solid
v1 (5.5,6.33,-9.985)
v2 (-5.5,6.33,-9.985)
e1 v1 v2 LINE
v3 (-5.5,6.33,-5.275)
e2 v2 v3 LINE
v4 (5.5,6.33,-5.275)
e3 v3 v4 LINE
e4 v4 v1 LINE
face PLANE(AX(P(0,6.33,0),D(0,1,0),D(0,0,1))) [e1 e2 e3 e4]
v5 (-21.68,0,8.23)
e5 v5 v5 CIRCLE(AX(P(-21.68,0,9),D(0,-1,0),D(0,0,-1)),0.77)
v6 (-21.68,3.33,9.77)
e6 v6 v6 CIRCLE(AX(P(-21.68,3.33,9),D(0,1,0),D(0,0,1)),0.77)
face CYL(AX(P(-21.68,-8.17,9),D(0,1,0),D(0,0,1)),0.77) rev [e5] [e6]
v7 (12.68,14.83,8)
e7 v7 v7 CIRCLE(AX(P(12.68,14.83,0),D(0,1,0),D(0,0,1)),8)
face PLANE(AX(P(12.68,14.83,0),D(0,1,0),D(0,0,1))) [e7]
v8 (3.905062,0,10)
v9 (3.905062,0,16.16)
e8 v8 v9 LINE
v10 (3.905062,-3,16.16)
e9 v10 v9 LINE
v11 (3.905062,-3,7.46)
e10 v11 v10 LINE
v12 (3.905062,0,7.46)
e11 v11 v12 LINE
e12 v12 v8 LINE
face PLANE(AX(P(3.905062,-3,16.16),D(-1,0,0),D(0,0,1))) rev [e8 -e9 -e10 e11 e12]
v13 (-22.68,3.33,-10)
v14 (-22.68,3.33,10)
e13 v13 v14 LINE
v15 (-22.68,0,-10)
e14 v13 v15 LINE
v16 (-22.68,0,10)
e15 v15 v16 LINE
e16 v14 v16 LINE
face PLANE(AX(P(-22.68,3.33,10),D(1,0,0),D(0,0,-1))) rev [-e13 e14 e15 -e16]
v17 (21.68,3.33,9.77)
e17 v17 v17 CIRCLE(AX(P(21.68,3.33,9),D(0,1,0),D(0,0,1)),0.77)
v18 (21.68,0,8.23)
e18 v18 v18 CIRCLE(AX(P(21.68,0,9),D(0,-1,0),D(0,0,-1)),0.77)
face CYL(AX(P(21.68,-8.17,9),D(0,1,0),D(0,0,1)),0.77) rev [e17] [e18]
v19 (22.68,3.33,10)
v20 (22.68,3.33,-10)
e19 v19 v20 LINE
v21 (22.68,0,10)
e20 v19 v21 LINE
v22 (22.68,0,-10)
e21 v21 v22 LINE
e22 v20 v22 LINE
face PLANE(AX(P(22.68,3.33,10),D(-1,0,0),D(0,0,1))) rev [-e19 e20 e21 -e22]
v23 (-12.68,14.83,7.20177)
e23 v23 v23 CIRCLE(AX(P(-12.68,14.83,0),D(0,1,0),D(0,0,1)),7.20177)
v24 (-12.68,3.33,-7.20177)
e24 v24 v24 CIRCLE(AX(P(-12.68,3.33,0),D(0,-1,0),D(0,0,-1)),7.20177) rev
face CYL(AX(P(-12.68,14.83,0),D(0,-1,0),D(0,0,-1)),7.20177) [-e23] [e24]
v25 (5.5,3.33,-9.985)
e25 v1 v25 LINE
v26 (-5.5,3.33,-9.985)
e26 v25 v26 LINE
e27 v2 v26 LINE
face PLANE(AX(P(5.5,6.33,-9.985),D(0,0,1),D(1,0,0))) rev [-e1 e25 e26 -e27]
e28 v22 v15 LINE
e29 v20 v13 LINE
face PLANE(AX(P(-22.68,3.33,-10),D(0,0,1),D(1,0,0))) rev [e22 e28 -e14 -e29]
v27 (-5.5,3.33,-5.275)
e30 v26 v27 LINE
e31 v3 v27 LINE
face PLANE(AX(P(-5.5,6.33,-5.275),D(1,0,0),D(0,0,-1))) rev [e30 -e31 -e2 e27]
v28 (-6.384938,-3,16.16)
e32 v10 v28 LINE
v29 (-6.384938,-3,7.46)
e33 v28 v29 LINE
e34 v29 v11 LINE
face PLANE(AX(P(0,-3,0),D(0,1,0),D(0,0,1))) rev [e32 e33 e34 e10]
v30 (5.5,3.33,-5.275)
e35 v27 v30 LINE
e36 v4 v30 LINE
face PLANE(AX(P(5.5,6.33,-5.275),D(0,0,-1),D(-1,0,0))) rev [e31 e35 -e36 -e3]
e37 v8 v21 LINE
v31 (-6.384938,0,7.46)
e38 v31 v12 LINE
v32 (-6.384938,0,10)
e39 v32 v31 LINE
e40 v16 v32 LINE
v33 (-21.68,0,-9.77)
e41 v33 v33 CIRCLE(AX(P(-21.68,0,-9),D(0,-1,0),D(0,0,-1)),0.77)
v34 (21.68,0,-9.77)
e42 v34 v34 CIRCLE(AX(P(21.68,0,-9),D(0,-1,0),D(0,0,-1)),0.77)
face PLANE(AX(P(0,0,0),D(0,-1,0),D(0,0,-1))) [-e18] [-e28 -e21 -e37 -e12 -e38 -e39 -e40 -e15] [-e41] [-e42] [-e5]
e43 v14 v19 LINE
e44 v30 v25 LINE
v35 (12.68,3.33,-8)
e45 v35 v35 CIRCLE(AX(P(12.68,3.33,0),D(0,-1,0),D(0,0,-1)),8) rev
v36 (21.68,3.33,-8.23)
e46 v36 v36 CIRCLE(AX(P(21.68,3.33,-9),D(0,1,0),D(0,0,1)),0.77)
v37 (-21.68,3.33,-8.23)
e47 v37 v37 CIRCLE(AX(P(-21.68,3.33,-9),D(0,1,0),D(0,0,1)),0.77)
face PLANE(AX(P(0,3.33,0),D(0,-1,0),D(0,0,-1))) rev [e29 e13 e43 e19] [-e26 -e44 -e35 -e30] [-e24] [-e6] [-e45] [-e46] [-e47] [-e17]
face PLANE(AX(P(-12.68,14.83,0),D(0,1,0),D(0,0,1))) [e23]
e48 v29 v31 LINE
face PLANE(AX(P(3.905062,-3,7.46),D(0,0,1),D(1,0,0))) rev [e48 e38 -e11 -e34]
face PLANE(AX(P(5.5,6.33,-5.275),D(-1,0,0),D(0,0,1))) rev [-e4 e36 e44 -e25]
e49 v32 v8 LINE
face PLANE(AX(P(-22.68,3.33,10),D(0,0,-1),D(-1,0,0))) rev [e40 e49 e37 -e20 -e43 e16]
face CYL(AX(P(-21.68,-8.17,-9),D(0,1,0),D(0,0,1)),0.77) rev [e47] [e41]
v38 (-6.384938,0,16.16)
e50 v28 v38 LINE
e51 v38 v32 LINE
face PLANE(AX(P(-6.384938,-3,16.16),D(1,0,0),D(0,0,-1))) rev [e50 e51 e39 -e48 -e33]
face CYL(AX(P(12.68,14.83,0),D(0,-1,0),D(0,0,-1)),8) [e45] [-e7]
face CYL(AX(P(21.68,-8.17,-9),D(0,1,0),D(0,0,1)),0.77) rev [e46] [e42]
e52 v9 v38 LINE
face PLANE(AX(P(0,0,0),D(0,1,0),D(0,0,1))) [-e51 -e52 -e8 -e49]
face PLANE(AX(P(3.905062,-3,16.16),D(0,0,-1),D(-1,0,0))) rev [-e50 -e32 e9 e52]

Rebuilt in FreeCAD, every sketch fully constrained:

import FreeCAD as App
import Part
import Sketcher
Q = App.Units.Quantity

doc = App.newDocument("Part")
params = doc.addObject("Spreadsheet::Sheet", "Params")
for row, (alias, value) in enumerate([
    ("sketch1_height", "20 mm"),
    ("sketch1_width", "45.36 mm"),
    ("pad1_length", "3.33 mm"),
    ("sketch2_diameter", "16 mm"),
    ("pad2_length", "11.5 mm"),
    ("sketch3_diameter", "1.54 mm"),
    ("pocket1_length", "11.5 mm"),
    ("sketch4_width", "11 mm"),
    ("sketch4_height", "4.71 mm"),
    ("pad3_length", "3 mm"),
    ("sketch5_height", "8.7 mm"),
    ("sketch5_width", "10.29 mm"),
    ("pad4_length", "3 mm"),
], start=1):
    params.set(f"A{row}", alias)
    params.set(f"B{row}", "=" + value)
    params.setAlias(f"B{row}", alias)

body = doc.addObject("PartDesign::Body", "Body")

# Sketch on XZ plane
sketch1 = doc.addObject("Sketcher::SketchObject", "Sketch")
body.addObject(sketch1)
sketch1.AttachmentSupport = (doc.XZ_Plane, [""])
sketch1.MapMode = "FlatFace"
sketch1.addGeometry(Part.LineSegment(App.Vector(-23, -10, 0), App.Vector(-23, 10, 0)), False)
sketch1.addGeometry(Part.LineSegment(App.Vector(-23, 10, 0), App.Vector(23, 10, 0)), False)
sketch1.addGeometry(Part.LineSegment(App.Vector(23, 10, 0), App.Vector(23, -10, 0)), False)
sketch1.addGeometry(Part.LineSegment(App.Vector(23, -10, 0), App.Vector(-23, -10, 0)), False)
sketch1.addConstraint(Sketcher.Constraint("Coincident", 0, 2, 1, 1))
sketch1.addConstraint(Sketcher.Constraint("Coincident", 1, 2, 2, 1))
sketch1.addConstraint(Sketcher.Constraint("Coincident", 2, 2, 3, 1))
sketch1.addConstraint(Sketcher.Constraint("Coincident", 3, 2, 0, 1))
sketch1.addConstraint(Sketcher.Constraint("Vertical", 0))
sketch1.addConstraint(Sketcher.Constraint("Horizontal", 1))
sketch1.addConstraint(Sketcher.Constraint("Vertical", 2))
sketch1.addConstraint(Sketcher.Constraint("Horizontal", 3))
sketch1.addConstraint(Sketcher.Constraint("Symmetric", 0, 2, 2, 2, -1, 1))
sketch1.addConstraint(Sketcher.Constraint("DistanceY", 0, 1, 0, 2, Q("20 mm")))
sketch1.addConstraint(Sketcher.Constraint("DistanceX", 1, 1, 1, 2, Q("45.36 mm")))
sketch1.setExpression("Constraints[9]", "Params.sketch1_height")
sketch1.setExpression("Constraints[10]", "Params.sketch1_width")
pad1 = doc.addObject("PartDesign::Pad", "Pad")
body.addObject(pad1)
pad1.Profile = sketch1
pad1.setExpression("Length", "Params.pad1_length")
pad1.Reversed = True

# Sketch on XZ plane
sketch2 = doc.addObject("Sketcher::SketchObject", "Sketch001")
body.addObject(sketch2)
sketch2.AttachmentSupport = (doc.XZ_Plane, [""])
sketch2.MapMode = "FlatFace"
sketch2.AttachmentOffset = App.Placement(App.Vector(0, 0, -3.33), App.Rotation())
sketch2.addGeometry(Part.Circle(App.Vector(13, 0, 0), App.Vector(0, 0, 1), 8), False)
sketch2.addGeometry(Part.Circle(App.Vector(-13, 0, 0), App.Vector(0, 0, 1), 7), False)
sketch2.addConstraint(Sketcher.Constraint("Symmetric", 0, 3, 1, 3, -1, 1))
sketch2.addConstraint(Sketcher.Constraint("PointOnObject", 0, 3, -1))
sketch2.addConstraint(Sketcher.Constraint("Diameter", 0, Q("16 mm")))
sketch2.addConstraint(Sketcher.Constraint("Diameter", 1, Q("14.40354 mm")))
sketch2.addConstraint(Sketcher.Constraint("DistanceX", -1, 1, 0, 3, Q("12.68 mm")))
sketch2.setExpression("Constraints[2]", "Params.sketch2_diameter")
pad2 = doc.addObject("PartDesign::Pad", "Pad001")
body.addObject(pad2)
pad2.Profile = sketch2
pad2.setExpression("Length", "Params.pad2_length")
pad2.Reversed = True

# Sketch on XZ plane
sketch3 = doc.addObject("Sketcher::SketchObject", "Sketch002")
body.addObject(sketch3)
sketch3.AttachmentSupport = (doc.XZ_Plane, [""])
sketch3.MapMode = "FlatFace"
sketch3.AttachmentOffset = App.Placement(App.Vector(0, 0, -3.33), App.Rotation())
sketch3.addGeometry(Part.Circle(App.Vector(21.7, -9, 0), App.Vector(0, 0, 1), 0.8), False)
sketch3.addGeometry(Part.Circle(App.Vector(21.7, 9, 0), App.Vector(0, 0, 1), 0.8), False)
sketch3.addGeometry(Part.Circle(App.Vector(-21.7, 9, 0), App.Vector(0, 0, 1), 0.8), False)
sketch3.addGeometry(Part.Circle(App.Vector(-21.7, -9, 0), App.Vector(0, 0, 1), 0.8), False)
sketch3.addConstraint(Sketcher.Constraint("Equal", 0, 1))
sketch3.addConstraint(Sketcher.Constraint("Equal", 1, 2))
sketch3.addConstraint(Sketcher.Constraint("Equal", 2, 3))
sketch3.addConstraint(Sketcher.Constraint("Symmetric", 0, 3, 2, 3, -1, 1))
sketch3.addConstraint(Sketcher.Constraint("Symmetric", 1, 3, 3, 3, -1, 1))
sketch3.addConstraint(Sketcher.Constraint("Symmetric", 1, 3, 2, 3, -2))
sketch3.addConstraint(Sketcher.Constraint("Diameter", 0, Q("1.54 mm")))
sketch3.addConstraint(Sketcher.Constraint("DistanceY", 0, 3, -1, 1, Q("9 mm")))
sketch3.addConstraint(Sketcher.Constraint("DistanceX", -1, 1, 0, 3, Q("21.68 mm")))
sketch3.setExpression("Constraints[6]", "Params.sketch3_diameter")
pocket1 = doc.addObject("PartDesign::Pocket", "Pocket")
body.addObject(pocket1)
pocket1.Profile = sketch3
pocket1.setExpression("Length", "Params.pocket1_length")
pocket1.Reversed = True

# Sketch on XZ plane
sketch4 = doc.addObject("Sketcher::SketchObject", "Sketch003")
body.addObject(sketch4)
sketch4.AttachmentSupport = (doc.XZ_Plane, [""])
sketch4.MapMode = "FlatFace"
sketch4.AttachmentOffset = App.Placement(App.Vector(0, 0, -3.33), App.Rotation())
sketch4.addGeometry(Part.LineSegment(App.Vector(-5.5, -10, 0), App.Vector(-5.5, -5.3, 0)), False)
sketch4.addGeometry(Part.LineSegment(App.Vector(-5.5, -5.3, 0), App.Vector(5.5, -5.3, 0)), False)
sketch4.addGeometry(Part.LineSegment(App.Vector(5.5, -5.3, 0), App.Vector(5.5, -10, 0)), False)
sketch4.addGeometry(Part.LineSegment(App.Vector(5.5, -10, 0), App.Vector(-5.5, -10, 0)), False)
sketch4.addConstraint(Sketcher.Constraint("Coincident", 0, 2, 1, 1))
sketch4.addConstraint(Sketcher.Constraint("Coincident", 1, 2, 2, 1))
sketch4.addConstraint(Sketcher.Constraint("Coincident", 2, 2, 3, 1))
sketch4.addConstraint(Sketcher.Constraint("Coincident", 3, 2, 0, 1))
sketch4.addConstraint(Sketcher.Constraint("Vertical", 0))
sketch4.addConstraint(Sketcher.Constraint("Horizontal", 1))
sketch4.addConstraint(Sketcher.Constraint("Vertical", 2))
sketch4.addConstraint(Sketcher.Constraint("Horizontal", 3))
sketch4.addConstraint(Sketcher.Constraint("DistanceX", 1, 1, 1, 2, Q("11 mm")))
sketch4.addConstraint(Sketcher.Constraint("DistanceY", 0, 1, 0, 2, Q("4.71 mm")))
sketch4.addConstraint(Sketcher.Constraint("DistanceX", 0, 2, -1, 1, Q("5.5 mm")))
sketch4.addConstraint(Sketcher.Constraint("DistanceY", 0, 2, -1, 1, Q("5.275 mm")))
sketch4.setExpression("Constraints[8]", "Params.sketch4_width")
sketch4.setExpression("Constraints[9]", "Params.sketch4_height")
pad3 = doc.addObject("PartDesign::Pad", "Pad002")
body.addObject(pad3)
pad3.Profile = sketch4
pad3.setExpression("Length", "Params.pad3_length")
pad3.Reversed = True

# Sketch on XZ plane
sketch5 = doc.addObject("Sketcher::SketchObject", "Sketch004")
body.addObject(sketch5)
sketch5.AttachmentSupport = (doc.XZ_Plane, [""])
sketch5.MapMode = "FlatFace"
sketch5.addGeometry(Part.LineSegment(App.Vector(-6, 16, 0), App.Vector(-6, 7, 0)), False)
sketch5.addGeometry(Part.LineSegment(App.Vector(-6, 7, 0), App.Vector(4, 7, 0)), False)
sketch5.addGeometry(Part.LineSegment(App.Vector(4, 7, 0), App.Vector(4, 16, 0)), False)
sketch5.addGeometry(Part.LineSegment(App.Vector(4, 16, 0), App.Vector(-6, 16, 0)), False)
sketch5.addConstraint(Sketcher.Constraint("Coincident", 0, 2, 1, 1))
sketch5.addConstraint(Sketcher.Constraint("Coincident", 1, 2, 2, 1))
sketch5.addConstraint(Sketcher.Constraint("Coincident", 2, 2, 3, 1))
sketch5.addConstraint(Sketcher.Constraint("Coincident", 3, 2, 0, 1))
sketch5.addConstraint(Sketcher.Constraint("Vertical", 0))
sketch5.addConstraint(Sketcher.Constraint("Horizontal", 1))
sketch5.addConstraint(Sketcher.Constraint("Vertical", 2))
sketch5.addConstraint(Sketcher.Constraint("Horizontal", 3))
sketch5.addConstraint(Sketcher.Constraint("DistanceY", 0, 2, 0, 1, Q("8.7 mm")))
sketch5.addConstraint(Sketcher.Constraint("DistanceX", 1, 1, 1, 2, Q("10.29 mm")))
sketch5.addConstraint(Sketcher.Constraint("DistanceY", -1, 1, 0, 2, Q("7.46 mm")))
sketch5.addConstraint(Sketcher.Constraint("DistanceX", 0, 2, -1, 1, Q("6.384938 mm")))
sketch5.setExpression("Constraints[8]", "Params.sketch5_height")
sketch5.setExpression("Constraints[9]", "Params.sketch5_width")
pad4 = doc.addObject("PartDesign::Pad", "Pad003")
body.addObject(pad4)
pad4.Profile = sketch5
pad4.setExpression("Length", "Params.pad4_length")

doc.recompute()
